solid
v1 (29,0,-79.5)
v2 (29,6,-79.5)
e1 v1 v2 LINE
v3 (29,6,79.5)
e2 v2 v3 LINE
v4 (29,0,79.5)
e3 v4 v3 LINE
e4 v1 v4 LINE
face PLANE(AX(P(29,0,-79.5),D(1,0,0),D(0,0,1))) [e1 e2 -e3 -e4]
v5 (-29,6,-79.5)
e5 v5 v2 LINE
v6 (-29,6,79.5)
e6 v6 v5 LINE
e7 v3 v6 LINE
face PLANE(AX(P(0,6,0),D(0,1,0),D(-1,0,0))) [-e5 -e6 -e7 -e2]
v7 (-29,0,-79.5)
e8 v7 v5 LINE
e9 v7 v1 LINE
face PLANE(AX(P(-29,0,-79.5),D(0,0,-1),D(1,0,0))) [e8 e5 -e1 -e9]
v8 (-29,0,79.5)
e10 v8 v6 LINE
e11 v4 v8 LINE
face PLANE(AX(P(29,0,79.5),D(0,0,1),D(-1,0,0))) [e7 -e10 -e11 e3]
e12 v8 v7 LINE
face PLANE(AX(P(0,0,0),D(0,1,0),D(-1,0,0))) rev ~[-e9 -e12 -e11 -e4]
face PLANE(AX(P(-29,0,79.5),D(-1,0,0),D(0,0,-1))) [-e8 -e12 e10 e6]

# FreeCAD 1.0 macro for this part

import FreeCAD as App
import Part
import Sketcher
Q = App.Units.Quantity


def add_polygon(sketch, points):
    """Adds a closed chain of lines whose ends are joined by coincident constraints."""
    first, n = sketch.GeometryCount, len(points)
    for a, b in zip(points, points[1:] + points[:1]):
        sketch.addGeometry(Part.LineSegment(App.Vector(*a, 0), App.Vector(*b, 0)), False)
    for i in range(n):
        sketch.addConstraint(Sketcher.Constraint("Coincident", first + i, 2, first + (i + 1) % n, 1))

doc = App.newDocument("Part")
params = doc.addObject("Spreadsheet::Sheet", "Params")
for row, (alias, value) in enumerate([
    ("sketch1_width", "58 mm"),
    ("sketch1_height", "159 mm"),
    ("pad1_length", "6 mm"),
], start=1):
    params.set(f"A{row}", alias)
    params.set(f"B{row}", "=" + value)
    params.setAlias(f"B{row}", alias)

body = doc.addObject("PartDesign::Body", "Body")

sketch1 = doc.addObject("Sketcher::SketchObject", "Sketch")
body.addObject(sketch1)
sketch1.AttachmentSupport = (doc.XZ_Plane, [""])
sketch1.MapMode = "FlatFace"
add_polygon(sketch1, [(-29, 79.5), (29, 79.5), (29, -79.5), (-29, -79.5)])
sketch1.addConstraint(Sketcher.Constraint("Horizontal", 0))
sketch1.addConstraint(Sketcher.Constraint("Vertical", 1))
sketch1.addConstraint(Sketcher.Constraint("Horizontal", 2))
sketch1.addConstraint(Sketcher.Constraint("Vertical", 3))
sketch1.addConstraint(Sketcher.Constraint("Symmetric", 0, 2, 2, 2, -1, 1))
sketch1.addConstraint(Sketcher.Constraint("DistanceX", 0, 1, 0, 2, Q("58 mm")))
sketch1.addConstraint(Sketcher.Constraint("DistanceY", 1, 2, 1, 1, Q("159 mm")))
sketch1.setExpression("Constraints[9]", "Params.sketch1_width")
sketch1.setExpression("Constraints[10]", "Params.sketch1_height")
pad1 = doc.addObject("PartDesign::Pad", "Pad")
body.addObject(pad1)
pad1.Profile = sketch1
pad1.setExpression("Length", "Params.pad1_length")
pad1.Reversed = True

doc.recompute()
